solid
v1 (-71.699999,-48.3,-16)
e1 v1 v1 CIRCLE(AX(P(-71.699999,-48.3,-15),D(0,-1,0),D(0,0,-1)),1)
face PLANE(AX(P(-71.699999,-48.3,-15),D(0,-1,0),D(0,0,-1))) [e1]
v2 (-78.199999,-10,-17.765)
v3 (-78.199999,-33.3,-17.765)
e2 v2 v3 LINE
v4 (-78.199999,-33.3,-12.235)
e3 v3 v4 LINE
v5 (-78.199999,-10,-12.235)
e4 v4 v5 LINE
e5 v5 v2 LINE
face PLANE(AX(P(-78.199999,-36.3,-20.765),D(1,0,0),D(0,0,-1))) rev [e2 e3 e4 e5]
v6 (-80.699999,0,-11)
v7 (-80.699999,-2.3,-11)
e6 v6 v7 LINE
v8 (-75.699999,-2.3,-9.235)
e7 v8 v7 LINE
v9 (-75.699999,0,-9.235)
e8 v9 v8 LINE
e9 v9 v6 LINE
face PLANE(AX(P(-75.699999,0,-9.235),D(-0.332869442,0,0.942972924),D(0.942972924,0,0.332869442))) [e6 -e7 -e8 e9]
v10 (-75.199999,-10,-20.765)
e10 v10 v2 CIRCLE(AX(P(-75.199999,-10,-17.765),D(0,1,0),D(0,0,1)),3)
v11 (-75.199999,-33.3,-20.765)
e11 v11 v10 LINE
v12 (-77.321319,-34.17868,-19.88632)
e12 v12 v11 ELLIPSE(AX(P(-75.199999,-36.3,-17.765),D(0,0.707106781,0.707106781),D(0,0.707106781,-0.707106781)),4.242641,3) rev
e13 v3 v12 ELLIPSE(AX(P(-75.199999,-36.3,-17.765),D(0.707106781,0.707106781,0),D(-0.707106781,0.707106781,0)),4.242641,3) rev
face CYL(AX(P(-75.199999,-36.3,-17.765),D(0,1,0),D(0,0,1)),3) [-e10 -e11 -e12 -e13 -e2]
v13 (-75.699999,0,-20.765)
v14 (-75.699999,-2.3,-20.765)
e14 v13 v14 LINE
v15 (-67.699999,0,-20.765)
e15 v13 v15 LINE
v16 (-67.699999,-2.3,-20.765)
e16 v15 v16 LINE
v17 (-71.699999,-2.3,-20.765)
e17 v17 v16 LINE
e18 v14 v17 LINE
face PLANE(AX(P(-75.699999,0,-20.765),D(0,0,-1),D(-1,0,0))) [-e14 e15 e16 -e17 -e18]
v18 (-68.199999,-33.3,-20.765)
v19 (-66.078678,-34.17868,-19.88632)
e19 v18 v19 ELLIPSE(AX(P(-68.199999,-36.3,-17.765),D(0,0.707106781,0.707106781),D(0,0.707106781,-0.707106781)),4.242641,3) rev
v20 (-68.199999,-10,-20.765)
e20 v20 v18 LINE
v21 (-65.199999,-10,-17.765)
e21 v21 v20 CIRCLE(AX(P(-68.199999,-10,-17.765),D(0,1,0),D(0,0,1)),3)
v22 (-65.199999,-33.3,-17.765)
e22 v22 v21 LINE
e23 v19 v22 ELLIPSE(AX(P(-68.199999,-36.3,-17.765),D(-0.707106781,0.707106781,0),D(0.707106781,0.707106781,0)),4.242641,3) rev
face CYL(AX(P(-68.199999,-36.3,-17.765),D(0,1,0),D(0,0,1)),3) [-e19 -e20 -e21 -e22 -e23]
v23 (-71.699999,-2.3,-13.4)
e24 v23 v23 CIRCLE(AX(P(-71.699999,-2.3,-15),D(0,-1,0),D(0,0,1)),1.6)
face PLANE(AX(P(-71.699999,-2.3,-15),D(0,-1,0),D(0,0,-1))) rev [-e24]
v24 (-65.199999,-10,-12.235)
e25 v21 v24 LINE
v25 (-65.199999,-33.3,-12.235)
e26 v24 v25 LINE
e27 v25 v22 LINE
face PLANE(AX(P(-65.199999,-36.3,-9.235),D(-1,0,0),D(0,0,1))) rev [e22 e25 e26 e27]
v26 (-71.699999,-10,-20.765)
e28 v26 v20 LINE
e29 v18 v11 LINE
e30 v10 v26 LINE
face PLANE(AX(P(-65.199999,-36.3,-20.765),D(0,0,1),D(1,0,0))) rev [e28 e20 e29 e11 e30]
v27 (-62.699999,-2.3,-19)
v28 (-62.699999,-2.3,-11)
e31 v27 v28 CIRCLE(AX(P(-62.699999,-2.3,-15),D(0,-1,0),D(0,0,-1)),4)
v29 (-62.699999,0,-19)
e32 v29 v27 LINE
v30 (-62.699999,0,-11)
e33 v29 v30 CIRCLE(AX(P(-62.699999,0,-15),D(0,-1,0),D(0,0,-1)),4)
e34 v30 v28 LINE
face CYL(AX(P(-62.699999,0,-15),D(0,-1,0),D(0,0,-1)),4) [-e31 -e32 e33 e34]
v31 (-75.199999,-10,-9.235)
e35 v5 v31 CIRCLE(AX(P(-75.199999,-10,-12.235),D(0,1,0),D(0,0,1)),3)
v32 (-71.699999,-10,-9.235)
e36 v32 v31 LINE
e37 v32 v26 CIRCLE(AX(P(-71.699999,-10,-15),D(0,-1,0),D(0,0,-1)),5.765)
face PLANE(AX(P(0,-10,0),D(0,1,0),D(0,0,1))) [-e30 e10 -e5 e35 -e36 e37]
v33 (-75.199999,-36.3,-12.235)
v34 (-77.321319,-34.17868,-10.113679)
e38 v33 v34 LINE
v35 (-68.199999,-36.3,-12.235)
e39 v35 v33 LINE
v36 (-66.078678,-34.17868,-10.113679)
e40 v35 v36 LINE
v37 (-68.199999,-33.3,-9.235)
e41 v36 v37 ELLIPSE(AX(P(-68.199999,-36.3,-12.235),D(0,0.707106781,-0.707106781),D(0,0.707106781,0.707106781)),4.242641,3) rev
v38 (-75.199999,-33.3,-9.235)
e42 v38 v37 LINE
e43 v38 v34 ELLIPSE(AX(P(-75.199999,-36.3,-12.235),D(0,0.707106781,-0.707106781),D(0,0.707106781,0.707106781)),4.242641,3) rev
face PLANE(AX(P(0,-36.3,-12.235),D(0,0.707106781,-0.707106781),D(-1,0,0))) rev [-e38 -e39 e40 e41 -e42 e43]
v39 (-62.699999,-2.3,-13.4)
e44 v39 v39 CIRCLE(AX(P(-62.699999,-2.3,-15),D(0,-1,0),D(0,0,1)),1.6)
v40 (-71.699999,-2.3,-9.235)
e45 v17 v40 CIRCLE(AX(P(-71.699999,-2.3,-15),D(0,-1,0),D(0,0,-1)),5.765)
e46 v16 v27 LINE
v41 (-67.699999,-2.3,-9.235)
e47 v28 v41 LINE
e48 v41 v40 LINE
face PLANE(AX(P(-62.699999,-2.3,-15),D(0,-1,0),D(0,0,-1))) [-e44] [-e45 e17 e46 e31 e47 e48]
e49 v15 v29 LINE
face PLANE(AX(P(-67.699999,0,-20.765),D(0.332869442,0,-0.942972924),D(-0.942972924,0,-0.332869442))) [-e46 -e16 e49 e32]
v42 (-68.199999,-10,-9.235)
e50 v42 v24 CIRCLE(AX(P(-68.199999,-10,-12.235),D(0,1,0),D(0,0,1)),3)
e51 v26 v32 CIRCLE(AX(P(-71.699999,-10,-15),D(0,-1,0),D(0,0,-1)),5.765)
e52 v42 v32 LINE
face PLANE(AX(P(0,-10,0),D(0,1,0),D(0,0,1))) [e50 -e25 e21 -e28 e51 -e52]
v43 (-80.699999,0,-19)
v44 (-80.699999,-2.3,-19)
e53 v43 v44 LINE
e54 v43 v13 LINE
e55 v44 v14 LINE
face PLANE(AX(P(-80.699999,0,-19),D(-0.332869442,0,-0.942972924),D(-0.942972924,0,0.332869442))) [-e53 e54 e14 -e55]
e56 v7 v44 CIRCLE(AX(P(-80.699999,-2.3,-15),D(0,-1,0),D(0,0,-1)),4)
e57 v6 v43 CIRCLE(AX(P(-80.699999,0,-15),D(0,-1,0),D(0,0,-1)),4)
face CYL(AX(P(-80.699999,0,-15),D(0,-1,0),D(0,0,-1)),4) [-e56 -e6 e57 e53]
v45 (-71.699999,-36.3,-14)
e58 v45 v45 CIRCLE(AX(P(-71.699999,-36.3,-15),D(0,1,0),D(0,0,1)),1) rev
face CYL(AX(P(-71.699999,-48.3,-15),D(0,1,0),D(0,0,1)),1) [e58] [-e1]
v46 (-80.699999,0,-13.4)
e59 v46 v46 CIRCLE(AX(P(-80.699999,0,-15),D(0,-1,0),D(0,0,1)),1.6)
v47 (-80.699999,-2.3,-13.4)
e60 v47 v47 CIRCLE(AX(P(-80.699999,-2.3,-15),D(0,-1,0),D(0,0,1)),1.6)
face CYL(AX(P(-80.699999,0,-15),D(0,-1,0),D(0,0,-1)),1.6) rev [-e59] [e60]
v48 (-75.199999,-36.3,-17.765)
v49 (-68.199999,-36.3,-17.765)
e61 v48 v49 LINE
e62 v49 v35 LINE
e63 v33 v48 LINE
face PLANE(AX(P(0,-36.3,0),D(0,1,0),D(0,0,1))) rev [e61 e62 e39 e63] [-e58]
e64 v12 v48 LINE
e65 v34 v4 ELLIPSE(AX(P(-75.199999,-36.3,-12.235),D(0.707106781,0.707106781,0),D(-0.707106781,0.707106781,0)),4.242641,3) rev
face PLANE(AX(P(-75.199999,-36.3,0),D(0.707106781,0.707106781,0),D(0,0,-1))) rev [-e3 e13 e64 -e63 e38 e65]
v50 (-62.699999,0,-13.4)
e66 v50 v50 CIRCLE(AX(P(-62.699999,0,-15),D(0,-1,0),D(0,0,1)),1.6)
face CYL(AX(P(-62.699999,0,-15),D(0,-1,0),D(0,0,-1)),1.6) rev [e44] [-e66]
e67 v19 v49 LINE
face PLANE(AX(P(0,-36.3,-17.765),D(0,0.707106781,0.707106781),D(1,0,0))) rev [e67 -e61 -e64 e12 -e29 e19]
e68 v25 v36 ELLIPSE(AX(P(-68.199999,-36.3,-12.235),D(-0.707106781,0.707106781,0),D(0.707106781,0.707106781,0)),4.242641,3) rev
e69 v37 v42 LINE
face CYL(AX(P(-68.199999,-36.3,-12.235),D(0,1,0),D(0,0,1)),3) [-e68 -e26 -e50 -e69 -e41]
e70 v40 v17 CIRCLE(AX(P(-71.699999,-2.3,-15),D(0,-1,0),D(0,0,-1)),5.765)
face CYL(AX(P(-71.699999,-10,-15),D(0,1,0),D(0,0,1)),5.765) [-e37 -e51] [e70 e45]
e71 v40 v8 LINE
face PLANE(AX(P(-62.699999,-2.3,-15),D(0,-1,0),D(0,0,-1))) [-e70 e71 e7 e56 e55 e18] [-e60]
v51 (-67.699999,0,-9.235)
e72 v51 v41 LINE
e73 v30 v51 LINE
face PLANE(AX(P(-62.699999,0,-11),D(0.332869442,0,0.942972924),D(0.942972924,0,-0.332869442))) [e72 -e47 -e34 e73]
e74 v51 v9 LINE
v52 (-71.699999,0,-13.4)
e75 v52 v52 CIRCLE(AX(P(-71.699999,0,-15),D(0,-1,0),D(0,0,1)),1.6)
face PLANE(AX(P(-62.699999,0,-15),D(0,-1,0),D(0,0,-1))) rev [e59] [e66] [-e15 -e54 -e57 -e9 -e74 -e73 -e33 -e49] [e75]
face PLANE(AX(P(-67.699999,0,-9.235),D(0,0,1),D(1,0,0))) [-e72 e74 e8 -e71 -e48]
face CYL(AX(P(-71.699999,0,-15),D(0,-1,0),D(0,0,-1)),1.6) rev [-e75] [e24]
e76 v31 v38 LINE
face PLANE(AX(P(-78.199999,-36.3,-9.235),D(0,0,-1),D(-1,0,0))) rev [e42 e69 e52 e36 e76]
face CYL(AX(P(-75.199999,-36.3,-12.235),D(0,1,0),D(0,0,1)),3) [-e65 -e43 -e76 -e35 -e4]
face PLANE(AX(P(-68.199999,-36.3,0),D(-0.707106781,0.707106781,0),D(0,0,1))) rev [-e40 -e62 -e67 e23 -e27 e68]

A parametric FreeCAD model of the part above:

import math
import FreeCAD as App
import Part
import Sketcher
from FreeCAD import Vector
Q = App.Units.Quantity


def edges_at(feature, points):
    """Names of the edges that pass closest to the given points."""
    edges = feature.Shape.Edges
    near = lambda p: min(range(len(edges)), key=lambda i: edges[i].distToShape(Part.Vertex(*p))[0])
    return sorted({f"Edge{near(p) + 1}" for p in points})

doc = App.newDocument("Part")
params = doc.addObject("Spreadsheet::Sheet", "Params")
for row, (alias, value) in enumerate([
    ("sketch1_radius", "4 mm"),
    ("sketch1_diameter", "3.2 mm"),
    ("sketch1_width", "8 mm"),
    ("pad1_length", "2.3 mm"),
    ("sketch2_diameter", "11.53 mm"),
    ("pad2_length", "7.7 mm"),
    ("sketch3_width", "13 mm"),
    ("sketch3_height", "11.53 mm"),
    ("pad3_length", "26.3 mm"),
    ("sketch4_diameter", "2 mm"),
    ("pad4_length", "12 mm"),
    ("chamfer_size", "3 mm"),
    ("fillet_radius", "3 mm"),
], start=1):
    params.set(f"A{row}", alias)
    params.set(f"B{row}", "=" + value)
    params.setAlias(f"B{row}", alias)

body = doc.addObject("PartDesign::Body", "Body")

# Sketch on XZ plane
sketch1 = body.newObject("Sketcher::SketchObject", "Sketch")
sketch1.AttachmentSupport = (doc.getObject("XZ_Plane"), [""])
sketch1.MapMode = "FlatFace"
sketch1.AttachmentOffset = App.Placement(Vector(0, 0, 2.3), App.Rotation())
sketch1.addGeometry(Part.LineSegment(Vector(-75.7, -20.8, 0), Vector(-67.7, -20.8, 0)), False)
sketch1.addGeometry(Part.LineSegment(Vector(-67.7, -20.8, 0), Vector(-62.7, -19, 0)), False)
sketch1.addGeometry(Part.ArcOfCircle(Part.Circle(Vector(-62.7, -15, 0), Vector(0, 0, 1), 4), math.radians(-90), math.radians(90)), False)
sketch1.addGeometry(Part.LineSegment(Vector(-62.7, -11, 0), Vector(-67.7, -9.2, 0)), False)
sketch1.addGeometry(Part.LineSegment(Vector(-67.7, -9.2, 0), Vector(-75.7, -9.2, 0)), False)
sketch1.addGeometry(Part.LineSegment(Vector(-75.7, -9.2, 0), Vector(-80.7, -11, 0)), False)
sketch1.addGeometry(Part.ArcOfCircle(Part.Circle(Vector(-80.7, -15, 0), Vector(0, 0, 1), 4), math.radians(90), math.radians(270)), False)
sketch1.addGeometry(Part.LineSegment(Vector(-80.7, -19, 0), Vector(-75.7, -20.8, 0)), False)
sketch1.addGeometry(Part.Circle(Vector(-80.7, -15, 0), Vector(0, 0, 1), 1.6), False)
sketch1.addGeometry(Part.Circle(Vector(-71.7, -15, 0), Vector(0, 0, 1), 1.6), False)
sketch1.addGeometry(Part.Circle(Vector(-62.7, -15, 0), Vector(0, 0, 1), 1.6), False)
sketch1.addConstraint(Sketcher.Constraint("Coincident", 0, 2, 1, 1))
sketch1.addConstraint(Sketcher.Constraint("Coincident", 1, 2, 2, 1))
sketch1.addConstraint(Sketcher.Constraint("Coincident", 2, 2, 3, 1))
sketch1.addConstraint(Sketcher.Constraint("Coincident", 3, 2, 4, 1))
sketch1.addConstraint(Sketcher.Constraint("Coincident", 4, 2, 5, 1))
sketch1.addConstraint(Sketcher.Constraint("Coincident", 5, 2, 6, 1))
sketch1.addConstraint(Sketcher.Constraint("Coincident", 6, 2, 7, 1))
sketch1.addConstraint(Sketcher.Constraint("Coincident", 7, 2, 0, 1))
sketch1.addConstraint(Sketcher.Constraint("Horizontal", 0))
sketch1.addConstraint(Sketcher.Constraint("Horizontal", 4))
sketch1.addConstraint(Sketcher.Constraint("Coincident", 8, 3, 6, 3))
sketch1.addConstraint(Sketcher.Constraint("Coincident", 10, 3, 2, 3))
sketch1.addConstraint(Sketcher.Constraint("Equal", 2, 6))
sketch1.addConstraint(Sketcher.Constraint("Equal", 8, 9))
sketch1.addConstraint(Sketcher.Constraint("Equal", 9, 10))
sketch1.addConstraint(Sketcher.Constraint("Parallel", 1, 5))
sketch1.addConstraint(Sketcher.Constraint("Parallel", 3, 7))
sketch1.addConstraint(Sketcher.Constraint("Horizontal", 2, 3, 6, 3))
sketch1.addConstraint(Sketcher.Constraint("Horizontal", 8, 3, 9, 3))
sketch1.addConstraint(Sketcher.Constraint("Vertical", 10, 3, 1, 2))
sketch1.addConstraint(Sketcher.Constraint("Vertical", 1, 2, 2, 2))
sketch1.addConstraint(Sketcher.Constraint("Vertical", 0, 2, 3, 2))
sketch1.addConstraint(Sketcher.Constraint("Vertical", 8, 3, 5, 2))
sketch1.addConstraint(Sketcher.Constraint("Vertical", 5, 2, 6, 2))
sketch1.addConstraint(Sketcher.Constraint("Vertical", 4, 2, 7, 2))
sketch1.addConstraint(Sketcher.Constraint("Radius", 2, Q("4 mm")))
sketch1.addConstraint(Sketcher.Constraint("Diameter", 8, Q("3.2 mm")))
sketch1.addConstraint(Sketcher.Constraint("DistanceX", 0, 1, 0, 2, Q("8 mm")))
sketch1.addConstraint(Sketcher.Constraint("DistanceY", 2, 3, -1, 1, Q("15 mm")))
sketch1.addConstraint(Sketcher.Constraint("DistanceX", 6, 3, 2, 3, Q("18 mm")))
sketch1.addConstraint(Sketcher.Constraint("DistanceX", 9, 3, 2, 3, Q("9 mm")))
sketch1.addConstraint(Sketcher.Constraint("DistanceX", 2, 3, -1, 1, Q("62.699999 mm")))
sketch1.addConstraint(Sketcher.Constraint("DistanceY", 0, 2, -1, 1, Q("20.765 mm")))
sketch1.setExpression("Constraints[25]", "Params.sketch1_radius")
sketch1.setExpression("Constraints[26]", "Params.sketch1_diameter")
sketch1.setExpression("Constraints[27]", "Params.sketch1_width")
pad1 = body.newObject("PartDesign::Pad", "Pad")
pad1.Profile = sketch1
pad1.setExpression("Length", "Params.pad1_length")
pad1.Reversed = True

# Sketch on XZ plane
sketch2 = body.newObject("Sketcher::SketchObject", "Sketch001")
sketch2.AttachmentSupport = (doc.getObject("XZ_Plane"), [""])
sketch2.MapMode = "FlatFace"
sketch2.AttachmentOffset = App.Placement(Vector(0, 0, 2.3), App.Rotation())
sketch2.addGeometry(Part.Circle(Vector(-72, -15, 0), Vector(0, 0, 1), 6), False)
sketch2.addConstraint(Sketcher.Constraint("Diameter", 0, Q("11.53 mm")))
sketch2.addConstraint(Sketcher.Constraint("DistanceY", 0, 3, -1, 1, Q("15 mm")))
sketch2.addConstraint(Sketcher.Constraint("DistanceX", 0, 3, -1, 1, Q("71.699999 mm")))
sketch2.setExpression("Constraints[0]", "Params.sketch2_diameter")
pad2 = body.newObject("PartDesign::Pad", "Pad001")
pad2.Profile = sketch2
pad2.setExpression("Length", "Params.pad2_length")

# Sketch on XZ plane
sketch3 = body.newObject("Sketcher::SketchObject", "Sketch002")
sketch3.AttachmentSupport = (doc.getObject("XZ_Plane"), [""])
sketch3.MapMode = "FlatFace"
sketch3.AttachmentOffset = App.Placement(Vector(0, 0, 10), App.Rotation())
sketch3.addGeometry(Part.LineSegment(Vector(-78, -9, 0), Vector(-78, -21, 0)), False)
sketch3.addGeometry(Part.LineSegment(Vector(-78, -21, 0), Vector(-65, -21, 0)), False)
sketch3.addGeometry(Part.LineSegment(Vector(-65, -21, 0), Vector(-65, -9, 0)), False)
sketch3.addGeometry(Part.LineSegment(Vector(-65, -9, 0), Vector(-78, -9, 0)), False)
sketch3.addConstraint(Sketcher.Constraint("Coincident", 0, 2, 1, 1))
sketch3.addConstraint(Sketcher.Constraint("Coincident", 1, 2, 2, 1))
sketch3.addConstraint(Sketcher.Constraint("Coincident", 2, 2, 3, 1))
sketch3.addConstraint(Sketcher.Constraint("Coincident", 3, 2, 0, 1))
sketch3.addConstraint(Sketcher.Constraint("Vertical", 0))
sketch3.addConstraint(Sketcher.Constraint("Horizontal", 1))
sketch3.addConstraint(Sketcher.Constraint("Vertical", 2))
sketch3.addConstraint(Sketcher.Constraint("Horizontal", 3))
sketch3.addConstraint(Sketcher.Constraint("DistanceX", 1, 1, 1, 2, Q("13 mm")))
sketch3.addConstraint(Sketcher.Constraint("DistanceY", 0, 2, 0, 1, Q("11.53 mm")))
sketch3.addConstraint(Sketcher.Constraint("DistanceX", 0, 2, -1, 1, Q("78.199999 mm")))
sketch3.addConstraint(Sketcher.Constraint("DistanceY", 0, 2, -1, 1, Q("20.765 mm")))
sketch3.setExpression("Constraints[8]", "Params.sketch3_width")
sketch3.setExpression("Constraints[9]", "Params.sketch3_height")
pad3 = body.newObject("PartDesign::Pad", "Pad002")
pad3.Profile = sketch3
pad3.setExpression("Length", "Params.pad3_length")

# Sketch on XZ plane
sketch4 = body.newObject("Sketcher::SketchObject", "Sketch003")
sketch4.AttachmentSupport = (doc.getObject("XZ_Plane"), [""])
sketch4.MapMode = "FlatFace"
sketch4.AttachmentOffset = App.Placement(Vector(0, 0, 36.3), App.Rotation())
sketch4.addGeometry(Part.Circle(Vector(-71.7, -15, 0), Vector(0, 0, 1), 1), False)
sketch4.addConstraint(Sketcher.Constraint("Diameter", 0, Q("2 mm")))
sketch4.addConstraint(Sketcher.Constraint("DistanceY", 0, 3, -1, 1, Q("15 mm")))
sketch4.addConstraint(Sketcher.Constraint("DistanceX", 0, 3, -1, 1, Q("71.699999 mm")))
sketch4.setExpression("Constraints[0]", "Params.sketch4_diameter")
pad4 = body.newObject("PartDesign::Pad", "Pad003")
pad4.Profile = sketch4
pad4.setExpression("Length", "Params.pad4_length")
doc.recompute()

chamfer = body.newObject("PartDesign::Chamfer", "Chamfer")
chamfer.Base = (pad4, edges_at(pad4, [
    (-71.7, -36.3, -9.235),
    (-78.2, -36.3, -15),
    (-71.7, -36.3, -20.765),
    (-65.2, -36.3, -15),
]))
chamfer.setExpression("Size", "Params.chamfer_size")
doc.recompute()

fillet = body.newObject("PartDesign::Fillet", "Fillet")
fillet.Base = (chamfer, edges_at(chamfer, [
    (-78.2, -21.65, -20.765),
    (-78.2, -21.65, -9.235),
    (-65.2, -21.65, -9.235),
    (-65.2, -21.65, -20.765),
]))
fillet.setExpression("Radius", "Params.fillet_radius")

doc.recompute()
